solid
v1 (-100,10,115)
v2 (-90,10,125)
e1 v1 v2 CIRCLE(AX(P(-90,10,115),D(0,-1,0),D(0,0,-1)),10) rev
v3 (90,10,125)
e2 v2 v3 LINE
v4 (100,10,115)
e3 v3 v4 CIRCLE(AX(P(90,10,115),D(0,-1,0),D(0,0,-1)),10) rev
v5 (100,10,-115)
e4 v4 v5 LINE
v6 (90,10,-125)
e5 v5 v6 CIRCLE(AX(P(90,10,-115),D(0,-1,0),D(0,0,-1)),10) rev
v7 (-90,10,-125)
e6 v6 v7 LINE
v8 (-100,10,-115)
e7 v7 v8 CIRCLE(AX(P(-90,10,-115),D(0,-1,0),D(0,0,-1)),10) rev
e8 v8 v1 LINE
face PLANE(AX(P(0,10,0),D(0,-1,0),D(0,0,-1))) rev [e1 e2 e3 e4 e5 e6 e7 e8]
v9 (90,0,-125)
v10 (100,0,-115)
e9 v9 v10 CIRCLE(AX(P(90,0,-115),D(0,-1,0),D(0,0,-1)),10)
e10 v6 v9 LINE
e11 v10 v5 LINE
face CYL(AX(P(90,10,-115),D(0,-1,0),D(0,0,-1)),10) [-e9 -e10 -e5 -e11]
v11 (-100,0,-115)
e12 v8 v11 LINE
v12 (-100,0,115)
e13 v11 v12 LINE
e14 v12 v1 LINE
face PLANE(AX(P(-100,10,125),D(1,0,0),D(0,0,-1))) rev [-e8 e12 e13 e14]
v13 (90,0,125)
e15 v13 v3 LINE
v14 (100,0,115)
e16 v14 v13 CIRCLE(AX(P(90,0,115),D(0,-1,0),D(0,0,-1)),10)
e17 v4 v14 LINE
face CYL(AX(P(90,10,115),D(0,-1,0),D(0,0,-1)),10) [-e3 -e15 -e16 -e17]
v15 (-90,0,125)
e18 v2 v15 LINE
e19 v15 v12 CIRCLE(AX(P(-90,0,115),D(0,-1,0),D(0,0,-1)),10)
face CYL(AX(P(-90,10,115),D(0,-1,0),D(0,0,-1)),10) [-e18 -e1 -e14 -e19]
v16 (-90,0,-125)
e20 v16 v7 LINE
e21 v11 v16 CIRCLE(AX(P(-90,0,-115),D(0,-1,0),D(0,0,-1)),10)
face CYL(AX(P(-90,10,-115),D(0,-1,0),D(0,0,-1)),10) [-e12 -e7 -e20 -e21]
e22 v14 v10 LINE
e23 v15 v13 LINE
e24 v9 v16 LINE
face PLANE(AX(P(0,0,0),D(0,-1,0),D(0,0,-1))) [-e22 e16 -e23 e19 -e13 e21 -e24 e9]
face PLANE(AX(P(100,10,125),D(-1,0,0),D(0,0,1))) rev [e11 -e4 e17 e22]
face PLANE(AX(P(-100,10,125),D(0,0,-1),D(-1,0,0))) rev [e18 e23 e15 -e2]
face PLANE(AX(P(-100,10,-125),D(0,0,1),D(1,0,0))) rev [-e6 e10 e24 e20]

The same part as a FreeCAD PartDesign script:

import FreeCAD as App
import Part
import Sketcher


def edges_at(feature, points):
    """Names of the edges that pass closest to the given points."""
    edges = feature.Shape.Edges
    near = lambda p: min(range(len(edges)), key=lambda i: edges[i].distToShape(Part.Vertex(*p))[0])
    return sorted({f"Edge{near(p) + 1}" for p in points})

doc = App.newDocument("Part")
body = doc.addObject("PartDesign::Body", "Body")

sketch1 = body.newObject("Sketcher::SketchObject", "Sketch")
sketch1.AttachmentSupport = (doc.getObject("XZ_Plane"), [""])
sketch1.MapMode = "FlatFace"
sketch1.addGeometry([
    Part.LineSegment(App.Vector(-100, -125, 0), App.Vector(-100, 125, 0)),
    Part.LineSegment(App.Vector(-100, 125, 0), App.Vector(100, 125, 0)),
    Part.LineSegment(App.Vector(100, 125, 0), App.Vector(100, -125, 0)),
    Part.LineSegment(App.Vector(100, -125, 0), App.Vector(-100, -125, 0)),
], False)
sketch1.addConstraint([
    Sketcher.Constraint("Coincident", 0, 2, 1, 1),
    Sketcher.Constraint("Coincident", 1, 2, 2, 1),
    Sketcher.Constraint("Coincident", 2, 2, 3, 1),
    Sketcher.Constraint("Coincident", 3, 2, 0, 1),
    Sketcher.Constraint("Vertical", 0),
    Sketcher.Constraint("Horizontal", 1),
    Sketcher.Constraint("Vertical", 2),
    Sketcher.Constraint("Horizontal", 3),
    Sketcher.Constraint("Symmetric", 0, 2, 2, 2, -1, 1),
    Sketcher.Constraint("DistanceX", 1, 1, 1, 2, 200.0),
    Sketcher.Constraint("DistanceY", 0, 1, 0, 2, 250.0),
])
pad1 = body.newObject("PartDesign::Pad", "Pad")
pad1.Profile = sketch1
pad1.Length = 10
pad1.Reversed = True
doc.recompute()

fillet = body.newObject("PartDesign::Fillet", "Fillet")
fillet.Base = (pad1, edges_at(pad1, [(100, 5, 125), (100, 5, -125)]))
fillet.Radius = 10
doc.recompute()

fillet2 = body.newObject("PartDesign::Fillet", "Fillet001")
fillet2.Base = (fillet, edges_at(fillet, [(-100, 5, 125), (-100, 5, -125)]))
fillet2.Radius = 10

doc.recompute()
